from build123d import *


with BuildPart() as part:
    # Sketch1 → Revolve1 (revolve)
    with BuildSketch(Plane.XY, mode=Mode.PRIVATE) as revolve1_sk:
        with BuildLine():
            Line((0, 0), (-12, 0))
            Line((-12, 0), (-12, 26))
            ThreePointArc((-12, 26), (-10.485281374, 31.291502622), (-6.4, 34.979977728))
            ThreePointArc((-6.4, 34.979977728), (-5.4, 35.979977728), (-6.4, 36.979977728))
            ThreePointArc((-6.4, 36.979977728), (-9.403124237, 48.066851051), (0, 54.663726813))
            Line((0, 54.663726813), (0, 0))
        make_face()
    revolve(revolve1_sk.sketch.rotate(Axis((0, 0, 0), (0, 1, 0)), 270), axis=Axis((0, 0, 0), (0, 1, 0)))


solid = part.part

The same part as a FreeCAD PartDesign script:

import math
import FreeCAD as App
import Part
import Sketcher
Q = App.Units.Quantity

doc = App.newDocument("Part")
body = doc.addObject("PartDesign::Body", "Body")

sketch1 = body.newObject("Sketcher::SketchObject", "Sketch")
sketch1.AttachmentSupport = (doc.getObject("XY_Plane"), [""])
sketch1.MapMode = "FlatFace"
sketch1.addGeometry([
    Part.LineSegment(App.Vector(-12, 0, 0), App.Vector(0, 0, 0)),
    Part.LineSegment(App.Vector(0, 0, 0), App.Vector(0, 54.663727, 0)),
    Part.ArcOfCircle(Part.Circle(App.Vector(0, 44.663727, 0), App.Vector(0, 0, 1), 10), math.radians(90), math.radians(230.208181)),
    Part.ArcOfCircle(Part.Circle(App.Vector(-6.4, 35.979978, 0), App.Vector(0, 0, 1), 1), math.radians(-90), math.radians(90)),
    Part.ArcOfCircle(Part.Circle(App.Vector(-2, 26, 0), App.Vector(0, 0, 1), 10), math.radians(116.103881), math.radians(180)),
    Part.LineSegment(App.Vector(-12, 26, 0), App.Vector(-12, 0, 0)),
], False)
sketch1.addConstraint([
    Sketcher.Constraint("Coincident", 0, 2, 1, 1),
    Sketcher.Constraint("Coincident", 1, 2, 2, 1),
    Sketcher.Constraint("Coincident", 2, 2, 3, 2),
    Sketcher.Constraint("Coincident", 3, 1, 4, 1),
    Sketcher.Constraint("Tangent", 4, 2, 5, 1),
    Sketcher.Constraint("Coincident", 5, 2, 0, 1),
    Sketcher.Constraint("Horizontal", 0),
    Sketcher.Constraint("Vertical", 1),
    Sketcher.Constraint("Vertical", 5),
    Sketcher.Constraint("Coincident", 0, 2, -1, 1),
    Sketcher.Constraint("Equal", 2, 4),
    Sketcher.Constraint("PointOnObject", 2, 3, -2),
    Sketcher.Constraint("Vertical", 3, 3, 2, 2),
    Sketcher.Constraint("Vertical", 2, 2, 3, 1),
    Sketcher.Constraint("Radius", 2, Q("10 mm")),
    Sketcher.Constraint("Radius", 3, Q("1 mm")),
    Sketcher.Constraint("DistanceX", 0, 1, 0, 2, Q("12 mm")),
    Sketcher.Constraint("DistanceY", 5, 2, 5, 1, Q("26 mm")),
    Sketcher.Constraint("DistanceX", 3, 3, -1, 1, Q("6.4 mm")),
])
revolution = body.newObject("PartDesign::Revolution", "Revolution")
revolution.Profile = sketch1
revolution.ReferenceAxis = (sketch1, ["V_Axis"])
revolution.Angle = 360

doc.recompute()
